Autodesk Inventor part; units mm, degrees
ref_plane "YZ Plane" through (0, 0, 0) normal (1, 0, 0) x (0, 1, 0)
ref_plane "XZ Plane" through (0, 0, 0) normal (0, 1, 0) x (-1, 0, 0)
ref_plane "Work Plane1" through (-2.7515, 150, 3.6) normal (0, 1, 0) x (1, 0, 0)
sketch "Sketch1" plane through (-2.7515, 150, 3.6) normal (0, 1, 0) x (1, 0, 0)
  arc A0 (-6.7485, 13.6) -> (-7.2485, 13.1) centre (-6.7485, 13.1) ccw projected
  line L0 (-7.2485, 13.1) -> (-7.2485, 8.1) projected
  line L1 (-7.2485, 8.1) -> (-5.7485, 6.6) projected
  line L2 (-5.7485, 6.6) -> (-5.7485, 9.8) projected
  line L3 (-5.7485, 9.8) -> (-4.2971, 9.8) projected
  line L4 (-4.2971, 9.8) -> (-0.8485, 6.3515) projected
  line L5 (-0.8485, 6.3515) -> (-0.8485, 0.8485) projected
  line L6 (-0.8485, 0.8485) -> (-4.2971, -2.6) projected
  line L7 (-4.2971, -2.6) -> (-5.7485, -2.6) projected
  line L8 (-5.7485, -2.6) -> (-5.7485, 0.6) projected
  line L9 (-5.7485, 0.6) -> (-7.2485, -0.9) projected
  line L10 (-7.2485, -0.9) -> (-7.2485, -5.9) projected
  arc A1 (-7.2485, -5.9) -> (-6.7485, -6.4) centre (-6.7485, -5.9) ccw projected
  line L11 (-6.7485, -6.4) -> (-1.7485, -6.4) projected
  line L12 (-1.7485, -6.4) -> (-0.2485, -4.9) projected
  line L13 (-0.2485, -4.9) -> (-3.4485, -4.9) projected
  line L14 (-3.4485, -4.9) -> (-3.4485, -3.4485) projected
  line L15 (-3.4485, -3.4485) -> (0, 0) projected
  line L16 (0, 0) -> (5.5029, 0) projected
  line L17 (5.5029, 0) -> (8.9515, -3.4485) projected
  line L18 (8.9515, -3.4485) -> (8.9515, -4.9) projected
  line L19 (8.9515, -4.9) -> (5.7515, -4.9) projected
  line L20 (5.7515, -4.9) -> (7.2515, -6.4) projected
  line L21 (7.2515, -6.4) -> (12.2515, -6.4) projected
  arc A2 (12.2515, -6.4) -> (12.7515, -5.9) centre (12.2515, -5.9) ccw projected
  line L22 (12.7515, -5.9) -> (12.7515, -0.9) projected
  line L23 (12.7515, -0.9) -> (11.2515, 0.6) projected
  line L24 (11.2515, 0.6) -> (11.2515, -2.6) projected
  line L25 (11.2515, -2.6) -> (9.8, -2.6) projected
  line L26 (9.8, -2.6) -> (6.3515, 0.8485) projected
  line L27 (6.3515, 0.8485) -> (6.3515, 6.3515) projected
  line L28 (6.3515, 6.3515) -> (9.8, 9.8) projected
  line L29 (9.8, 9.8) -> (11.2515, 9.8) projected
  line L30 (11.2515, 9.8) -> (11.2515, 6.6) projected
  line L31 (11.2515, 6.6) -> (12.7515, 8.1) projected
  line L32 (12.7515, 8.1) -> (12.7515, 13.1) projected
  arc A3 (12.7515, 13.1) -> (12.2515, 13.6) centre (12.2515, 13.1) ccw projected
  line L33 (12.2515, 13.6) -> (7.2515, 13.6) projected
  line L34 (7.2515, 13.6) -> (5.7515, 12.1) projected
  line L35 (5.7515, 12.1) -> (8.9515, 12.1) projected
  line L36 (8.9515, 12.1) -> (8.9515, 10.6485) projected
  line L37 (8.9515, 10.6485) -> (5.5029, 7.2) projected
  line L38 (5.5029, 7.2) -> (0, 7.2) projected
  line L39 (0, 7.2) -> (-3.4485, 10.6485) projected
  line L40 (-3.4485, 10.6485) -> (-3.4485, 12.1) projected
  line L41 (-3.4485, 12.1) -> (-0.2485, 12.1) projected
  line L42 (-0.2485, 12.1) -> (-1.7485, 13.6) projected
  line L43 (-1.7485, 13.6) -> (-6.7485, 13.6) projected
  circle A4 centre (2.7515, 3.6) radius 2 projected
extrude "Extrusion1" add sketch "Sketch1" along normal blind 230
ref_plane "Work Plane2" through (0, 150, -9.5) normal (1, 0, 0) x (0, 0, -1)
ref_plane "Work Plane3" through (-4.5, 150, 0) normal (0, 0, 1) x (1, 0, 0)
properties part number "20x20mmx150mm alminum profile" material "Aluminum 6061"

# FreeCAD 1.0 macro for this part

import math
import FreeCAD as App
import Part
import Sketcher

V = App.Vector
Q = App.Units.Quantity

doc = App.newDocument("Part")
params = doc.addObject("Spreadsheet::Sheet", "Params")
for row, (alias, value) in enumerate([
    ("sketch1_diameter", "4 mm"),
    ("sketch1_radius", "0.5 mm"),
    ("sketch1_width", "5 mm"),
    ("sketch1_width2", "3.2 mm"),
    ("pad1_length", "230 mm"),
], start=1):
    params.set(f"A{row}", alias)
    params.set(f"B{row}", "=" + value)
    params.setAlias(f"B{row}", alias)

body = doc.addObject("PartDesign::Body", "Body")

sketch1 = body.newObject("Sketcher::SketchObject", "Sketch")
sketch1.AttachmentSupport = (doc.getObject("XZ_Plane"), [""])
sketch1.MapMode = "FlatFace"
sketch1.AttachmentOffset = App.Placement(V(0, 0, -150), App.Rotation())
sketch1.addGeometry(Part.LineSegment(V(-4.5, -10, 0), V(-9.5, -10, 0)), False)
sketch1.addGeometry(Part.ArcOfCircle(Part.Circle(V(-9.5, -9.5, 0), V(0, 0, 1), 0.5), math.radians(180), math.radians(270)), False)
sketch1.addGeometry(Part.LineSegment(V(-10, -9.5, 0), V(-10, -4.5, 0)), False)
sketch1.addGeometry(Part.LineSegment(V(-10, -4.5, 0), V(-8.5, -3, 0)), False)
sketch1.addGeometry(Part.LineSegment(V(-8.5, -3, 0), V(-8.5, -6.2, 0)), False)
sketch1.addGeometry(Part.LineSegment(V(-8.5, -6.2, 0), V(-7, -6.2, 0)), False)
sketch1.addGeometry(Part.LineSegment(V(-7, -6.2, 0), V(-3.6, -2.8, 0)), False)
sketch1.addGeometry(Part.LineSegment(V(-3.6, -2.8, 0), V(-3.6, 2.8, 0)), False)
sketch1.addGeometry(Part.LineSegment(V(-3.6, 2.8, 0), V(-7, 6.2, 0)), False)
sketch1.addGeometry(Part.LineSegment(V(-7, 6.2, 0), V(-8.5, 6.2, 0)), False)
sketch1.addGeometry(Part.LineSegment(V(-8.5, 6.2, 0), V(-8.5, 3, 0)), False)
sketch1.addGeometry(Part.LineSegment(V(-8.5, 3, 0), V(-10, 4.5, 0)), False)
sketch1.addGeometry(Part.LineSegment(V(-10, 4.5, 0), V(-10, 9.5, 0)), False)
sketch1.addGeometry(Part.ArcOfCircle(Part.Circle(V(-9.5, 9.5, 0), V(0, 0, 1), 0.5), math.radians(90), math.radians(180)), False)
sketch1.addGeometry(Part.LineSegment(V(-9.5, 10, 0), V(-4.5, 10, 0)), False)
sketch1.addGeometry(Part.LineSegment(V(-4.5, 10, 0), V(-3, 8.5, 0)), False)
sketch1.addGeometry(Part.LineSegment(V(-3, 8.5, 0), V(-6.2, 8.5, 0)), False)
sketch1.addGeometry(Part.LineSegment(V(-6.2, 8.5, 0), V(-6.2, 7, 0)), False)
sketch1.addGeometry(Part.LineSegment(V(-6.2, 7, 0), V(-2.8, 3.6, 0)), False)
sketch1.addGeometry(Part.LineSegment(V(-2.8, 3.6, 0), V(2.8, 3.6, 0)), False)
sketch1.addGeometry(Part.LineSegment(V(2.8, 3.6, 0), V(6.2, 7, 0)), False)
sketch1.addGeometry(Part.LineSegment(V(6.2, 7, 0), V(6.2, 8.5, 0)), False)
sketch1.addGeometry(Part.LineSegment(V(6.2, 8.5, 0), V(3, 8.5, 0)), False)
sketch1.addGeometry(Part.LineSegment(V(3, 8.5, 0), V(4.5, 10, 0)), False)
sketch1.addGeometry(Part.LineSegment(V(4.5, 10, 0), V(9.5, 10, 0)), False)
sketch1.addGeometry(Part.ArcOfCircle(Part.Circle(V(9.5, 9.5, 0), V(0, 0, 1), 0.5), math.radians(0), math.radians(90)), False)
sketch1.addGeometry(Part.LineSegment(V(10, 9.5, 0), V(10, 4.5, 0)), False)
sketch1.addGeometry(Part.LineSegment(V(10, 4.5, 0), V(8.5, 3, 0)), False)
sketch1.addGeometry(Part.LineSegment(V(8.5, 3, 0), V(8.5, 6.2, 0)), False)
sketch1.addGeometry(Part.LineSegment(V(8.5, 6.2, 0), V(7, 6.2, 0)), False)
sketch1.addGeometry(Part.LineSegment(V(7, 6.2, 0), V(3.6, 2.8, 0)), False)
sketch1.addGeometry(Part.LineSegment(V(3.6, 2.8, 0), V(3.6, -2.8, 0)), False)
sketch1.addGeometry(Part.LineSegment(V(3.6, -2.8, 0), V(7, -6.2, 0)), False)
sketch1.addGeometry(Part.LineSegment(V(7, -6.2, 0), V(8.5, -6.2, 0)), False)
sketch1.addGeometry(Part.LineSegment(V(8.5, -6.2, 0), V(8.5, -3, 0)), False)
sketch1.addGeometry(Part.LineSegment(V(8.5, -3, 0), V(10, -4.5, 0)), False)
sketch1.addGeometry(Part.LineSegment(V(10, -4.5, 0), V(10, -9.5, 0)), False)
sketch1.addGeometry(Part.ArcOfCircle(Part.Circle(V(9.5, -9.5, 0), V(0, 0, 1), 0.5), math.radians(-90), math.radians(0)), False)
sketch1.addGeometry(Part.LineSegment(V(9.5, -10, 0), V(4.5, -10, 0)), False)
sketch1.addGeometry(Part.LineSegment(V(4.5, -10, 0), V(3, -8.5, 0)), False)
sketch1.addGeometry(Part.LineSegment(V(3, -8.5, 0), V(6.2, -8.5, 0)), False)
sketch1.addGeometry(Part.LineSegment(V(6.2, -8.5, 0), V(6.2, -7, 0)), False)
sketch1.addGeometry(Part.LineSegment(V(6.2, -7, 0), V(2.8, -3.6, 0)), False)
sketch1.addGeometry(Part.LineSegment(V(2.8, -3.6, 0), V(-2.8, -3.6, 0)), False)
sketch1.addGeometry(Part.LineSegment(V(-2.8, -3.6, 0), V(-6.2, -7, 0)), False)
sketch1.addGeometry(Part.LineSegment(V(-6.2, -7, 0), V(-6.2, -8.5, 0)), False)
sketch1.addGeometry(Part.LineSegment(V(-6.2, -8.5, 0), V(-3, -8.5, 0)), False)
sketch1.addGeometry(Part.LineSegment(V(-3, -8.5, 0), V(-4.5, -10, 0)), False)
sketch1.addGeometry(Part.Circle(V(0, 0, 0), V(0, 0, 1), 2), False)
sketch1.addConstraint(Sketcher.Constraint("Tangent", 0, 2, 1, 2))
sketch1.addConstraint(Sketcher.Constraint("Tangent", 1, 1, 2, 1))
sketch1.addConstraint(Sketcher.Constraint("Coincident", 2, 2, 3, 1))
sketch1.addConstraint(Sketcher.Constraint("Coincident", 3, 2, 4, 1))
sketch1.addConstraint(Sketcher.Constraint("Coincident", 4, 2, 5, 1))
sketch1.addConstraint(Sketcher.Constraint("Coincident", 5, 2, 6, 1))
sketch1.addConstraint(Sketcher.Constraint("Coincident", 6, 2, 7, 1))
sketch1.addConstraint(Sketcher.Constraint("Coincident", 7, 2, 8, 1))
sketch1.addConstraint(Sketcher.Constraint("Coincident", 8, 2, 9, 1))
sketch1.addConstraint(Sketcher.Constraint("Coincident", 9, 2, 10, 1))
sketch1.addConstraint(Sketcher.Constraint("Coincident", 10, 2, 11, 1))
sketch1.addConstraint(Sketcher.Constraint("Coincident", 11, 2, 12, 1))
sketch1.addConstraint(Sketcher.Constraint("Tangent", 12, 2, 13, 2))
sketch1.addConstraint(Sketcher.Constraint("Tangent", 13, 1, 14, 1))
sketch1.addConstraint(Sketcher.Constraint("Coincident", 14, 2, 15, 1))
sketch1.addConstraint(Sketcher.Constraint("Coincident", 15, 2, 16, 1))
sketch1.addConstraint(Sketcher.Constraint("Coincident", 16, 2, 17, 1))
sketch1.addConstraint(Sketcher.Constraint("Coincident", 17, 2, 18, 1))
sketch1.addConstraint(Sketcher.Constraint("Coincident", 18, 2, 19, 1))
sketch1.addConstraint(Sketcher.Constraint("Coincident", 19, 2, 20, 1))
sketch1.addConstraint(Sketcher.Constraint("Coincident", 20, 2, 21, 1))
sketch1.addConstraint(Sketcher.Constraint("Coincident", 21, 2, 22, 1))
sketch1.addConstraint(Sketcher.Constraint("Coincident", 22, 2, 23, 1))
sketch1.addConstraint(Sketcher.Constraint("Coincident", 23, 2, 24, 1))
sketch1.addConstraint(Sketcher.Constraint("Tangent", 24, 2, 25, 2))
sketch1.addConstraint(Sketcher.Constraint("Tangent", 25, 1, 26, 1))
sketch1.addConstraint(Sketcher.Constraint("Coincident", 26, 2, 27, 1))
sketch1.addConstraint(Sketcher.Constraint("Coincident", 27, 2, 28, 1))
sketch1.addConstraint(Sketcher.Constraint("Coincident", 28, 2, 29, 1))
sketch1.addConstraint(Sketcher.Constraint("Coincident", 29, 2, 30, 1))
sketch1.addConstraint(Sketcher.Constraint("Coincident", 30, 2, 31, 1))
sketch1.addConstraint(Sketcher.Constraint("Coincident", 31, 2, 32, 1))
sketch1.addConstraint(Sketcher.Constraint("Coincident", 32, 2, 33, 1))
sketch1.addConstraint(Sketcher.Constraint("Coincident", 33, 2, 34, 1))
sketch1.addConstraint(Sketcher.Constraint("Coincident", 34, 2, 35, 1))
sketch1.addConstraint(Sketcher.Constraint("Coincident", 35, 2, 36, 1))
sketch1.addConstraint(Sketcher.Constraint("Tangent", 36, 2, 37, 2))
sketch1.addConstraint(Sketcher.Constraint("Tangent", 37, 1, 38, 1))
sketch1.addConstraint(Sketcher.Constraint("Coincident", 38, 2, 39, 1))
sketch1.addConstraint(Sketcher.Constraint("Coincident", 39, 2, 40, 1))
sketch1.addConstraint(Sketcher.Constraint("Coincident", 40, 2, 41, 1))
sketch1.addConstraint(Sketcher.Constraint("Coincident", 41, 2, 42, 1))
sketch1.addConstraint(Sketcher.Constraint("Coincident", 42, 2, 43, 1))
sketch1.addConstraint(Sketcher.Constraint("Coincident", 43, 2, 44, 1))
sketch1.addConstraint(Sketcher.Constraint("Coincident", 44, 2, 45, 1))
sketch1.addConstraint(Sketcher.Constraint("Coincident", 45, 2, 46, 1))
sketch1.addConstraint(Sketcher.Constraint("Coincident", 46, 2, 47, 1))
sketch1.addConstraint(Sketcher.Constraint("Coincident", 47, 2, 0, 1))
sketch1.addConstraint(Sketcher.Constraint("Horizontal", 0))
sketch1.addConstraint(Sketcher.Constraint("Vertical", 2))
sketch1.addConstraint(Sketcher.Constraint("Vertical", 4))
sketch1.addConstraint(Sketcher.Constraint("Horizontal", 5))
sketch1.addConstraint(Sketcher.Constraint("Vertical", 7))
sketch1.addConstraint(Sketcher.Constraint("Horizontal", 9))
sketch1.addConstraint(Sketcher.Constraint("Vertical", 10))
sketch1.addConstraint(Sketcher.Constraint("Vertical", 12))
sketch1.addConstraint(Sketcher.Constraint("Horizontal", 14))
sketch1.addConstraint(Sketcher.Constraint("Horizontal", 16))
sketch1.addConstraint(Sketcher.Constraint("Vertical", 17))
sketch1.addConstraint(Sketcher.Constraint("Horizontal", 19))
sketch1.addConstraint(Sketcher.Constraint("Vertical", 21))
sketch1.addConstraint(Sketcher.Constraint("Horizontal", 22))
sketch1.addConstraint(Sketcher.Constraint("Horizontal", 24))
sketch1.addConstraint(Sketcher.Constraint("Vertical", 26))
sketch1.addConstraint(Sketcher.Constraint("Vertical", 28))
sketch1.addConstraint(Sketcher.Constraint("Horizontal", 29))
sketch1.addConstraint(Sketcher.Constraint("Vertical", 31))
sketch1.addConstraint(Sketcher.Constraint("Horizontal", 33))
sketch1.addConstraint(Sketcher.Constraint("Vertical", 34))
sketch1.addConstraint(Sketcher.Constraint("Vertical", 36))
sketch1.addConstraint(Sketcher.Constraint("Horizontal", 38))
sketch1.addConstraint(Sketcher.Constraint("Horizontal", 40))
sketch1.addConstraint(Sketcher.Constraint("Vertical", 41))
sketch1.addConstraint(Sketcher.Constraint("Horizontal", 43))
sketch1.addConstraint(Sketcher.Constraint("Vertical", 45))
sketch1.addConstraint(Sketcher.Constraint("Horizontal", 46))
sketch1.addConstraint(Sketcher.Constraint("Coincident", 48, 3, -1, 1))
sketch1.addConstraint(Sketcher.Constraint("Equal", 1, 13))
sketch1.addConstraint(Sketcher.Constraint("Equal", 13, 25))
sketch1.addConstraint(Sketcher.Constraint("Equal", 25, 37))
sketch1.addConstraint(Sketcher.Constraint("Symmetric", 1, 3, 25, 3, -1, 1))
sketch1.addConstraint(Sketcher.Constraint("Symmetric", 13, 3, 37, 3, -1, 1))
sketch1.addConstraint(Sketcher.Constraint("Symmetric", 3, 2, 27, 2, -1, 1))
sketch1.addConstraint(Sketcher.Constraint("Symmetric", 5, 2, 29, 2, -1, 1))
sketch1.addConstraint(Sketcher.Constraint("Symmetric", 6, 2, 30, 2, -1, 1))
sketch1.addConstraint(Sketcher.Constraint("Symmetric", 8, 2, 32, 2, -1, 1))
sketch1.addConstraint(Sketcher.Constraint("Symmetric", 10, 2, 34, 2, -1, 1))
sketch1.addConstraint(Sketcher.Constraint("Symmetric", 15, 2, 39, 2, -1, 1))
sketch1.addConstraint(Sketcher.Constraint("Symmetric", 17, 2, 41, 2, -1, 1))
sketch1.addConstraint(Sketcher.Constraint("Symmetric", 18, 2, 42, 2, -1, 1))
sketch1.addConstraint(Sketcher.Constraint("Symmetric", 20, 2, 44, 2, -1, 1))
sketch1.addConstraint(Sketcher.Constraint("Symmetric", 22, 2, 46, 2, -1, 1))
sketch1.addConstraint(Sketcher.Constraint("Symmetric", 13, 3, 25, 3, -2))
sketch1.addConstraint(Sketcher.Constraint("Symmetric", 17, 2, 20, 2, -2))
sketch1.addConstraint(Sketcher.Constraint("Symmetric", 15, 2, 22, 2, -2))
sketch1.addConstraint(Sketcher.Constraint("Symmetric", 10, 2, 27, 2, -2))
sketch1.addConstraint(Sketcher.Constraint("Symmetric", 8, 2, 29, 2, -2))
sketch1.addConstraint(Sketcher.Constraint("Parallel", 3, 6))
sketch1.addConstraint(Sketcher.Constraint("Perpendicular", 6, 8))
sketch1.addConstraint(Sketcher.Constraint("Parallel", 8, 11))
sketch1.addConstraint(Sketcher.Constraint("Parallel", 11, 15))
sketch1.addConstraint(Sketcher.Constraint("Parallel", 15, 18))
sketch1.addConstraint(Sketcher.Constraint("Perpendicular", 18, 20))
sketch1.addConstraint(Sketcher.Constraint("Parallel", 20, 23))
sketch1.addConstraint(Sketcher.Constraint("Parallel", 23, 27))
sketch1.addConstraint(Sketcher.Constraint("Perpendicular", 30, 32))
sketch1.addConstraint(Sketcher.Constraint("Parallel", 32, 35))
sketch1.addConstraint(Sketcher.Constraint("Parallel", 35, 39))
sketch1.addConstraint(Sketcher.Constraint("Perpendicular", 42, 44))
sketch1.addConstraint(Sketcher.Constraint("Parallel", 44, 47))
sketch1.addConstraint(Sketcher.Constraint("Horizontal", 11, 2, 26, 2))
sketch1.addConstraint(Sketcher.Constraint("Equal", 38, 2))
sketch1.addConstraint(Sketcher.Constraint("Equal", 46, 4))
sketch1.addConstraint(Sketcher.Constraint("Equal", 43, 7))
sketch1.addConstraint(Sketcher.Constraint("Equal", 33, 17))
sketch1.addConstraint(Sketcher.Constraint("Equal", 11, 15))
sketch1.addConstraint(Sketcher.Constraint("Equal", 8, 18))
sketch1.addConstraint(Sketcher.Constraint("Diameter", 48, Q("4 mm")))
sketch1.addConstraint(Sketcher.Constraint("Radius", 1, Q("0.5 mm")))
sketch1.addConstraint(Sketcher.Constraint("DistanceX", 0, 2, 0, 1, Q("5 mm")))
sketch1.addConstraint(Sketcher.Constraint("DistanceX", 16, 2, 16, 1, Q("3.2 mm")))
sketch1.addConstraint(Sketcher.Constraint("DistanceY", 0, 2, -1, 1, Q("10 mm")))
sketch1.addConstraint(Sketcher.Constraint("DistanceY", 3, 2, -1, 1, Q("3 mm")))
sketch1.addConstraint(Sketcher.Constraint("DistanceX", 6, 2, -1, 1, Q("3.6 mm")))
sketch1.addConstraint(Sketcher.Constraint("DistanceX", 19, 1, 19, 2, Q("5.503 mm")))
sketch1.setExpression("Constraints[117]", "Params.sketch1_diameter")
sketch1.setExpression("Constraints[118]", "Params.sketch1_radius")
sketch1.setExpression("Constraints[119]", "Params.sketch1_width")
sketch1.setExpression("Constraints[120]", "Params.sketch1_width2")
pad1 = body.newObject("PartDesign::Pad", "Pad")
pad1.Profile = sketch1
pad1.setExpression("Length", "Params.pad1_length")
pad1.Reversed = True

doc.recompute()
